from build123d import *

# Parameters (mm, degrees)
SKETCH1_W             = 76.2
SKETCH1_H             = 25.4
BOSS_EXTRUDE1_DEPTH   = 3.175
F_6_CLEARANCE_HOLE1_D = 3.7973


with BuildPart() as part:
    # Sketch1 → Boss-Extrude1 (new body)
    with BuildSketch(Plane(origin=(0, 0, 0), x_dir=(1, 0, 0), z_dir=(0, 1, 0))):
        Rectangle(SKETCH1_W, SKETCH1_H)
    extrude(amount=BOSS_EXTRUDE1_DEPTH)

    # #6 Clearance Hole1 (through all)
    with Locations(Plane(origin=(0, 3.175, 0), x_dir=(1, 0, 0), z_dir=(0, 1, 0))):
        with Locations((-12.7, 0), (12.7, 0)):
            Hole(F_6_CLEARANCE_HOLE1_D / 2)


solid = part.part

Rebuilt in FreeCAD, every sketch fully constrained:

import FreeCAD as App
import Part
import Sketcher
from FreeCAD import Vector
Q = App.Units.Quantity


def add_polygon(sketch, points):
    """Adds a closed chain of lines whose ends are joined by coincident constraints."""
    first, n = sketch.GeometryCount, len(points)
    for a, b in zip(points, points[1:] + points[:1]):
        sketch.addGeometry(Part.LineSegment(App.Vector(*a, 0), App.Vector(*b, 0)), False)
    for i in range(n):
        sketch.addConstraint(Sketcher.Constraint("Coincident", first + i, 2, first + (i + 1) % n, 1))

doc = App.newDocument("Part")
body = doc.addObject("PartDesign::Body", "Body")

# Sketch on XZ plane
sketch1 = body.newObject("Sketcher::SketchObject", "Sketch")
sketch1.AttachmentSupport = (doc.getObject("XZ_Plane"), [""])
sketch1.MapMode = "FlatFace"
add_polygon(sketch1, [(-38, -13), (-38, 13), (38, 13), (38, -13)])  # lines 0-3
sketch1.addConstraint(Sketcher.Constraint("Vertical", 0))
sketch1.addConstraint(Sketcher.Constraint("Horizontal", 1))
sketch1.addConstraint(Sketcher.Constraint("Vertical", 2))
sketch1.addConstraint(Sketcher.Constraint("Horizontal", 3))
sketch1.addConstraint(Sketcher.Constraint("Symmetric", 0, 2, 2, 2, -1, 1))
sketch1.addConstraint(Sketcher.Constraint("DistanceX", 1, 1, 1, 2, Q("3 in")))
sketch1.addConstraint(Sketcher.Constraint("DistanceY", 0, 1, 0, 2, Q("1 in")))
pad1 = body.newObject("PartDesign::Pad", "Pad")
pad1.Profile = sketch1
pad1.Length = Q("0.125 in")
pad1.Reversed = True

# Sketch on XZ plane
sketch2 = body.newObject("Sketcher::SketchObject", "Sketch001")
sketch2.AttachmentSupport = (doc.getObject("XZ_Plane"), [""])
sketch2.MapMode = "FlatFace"
sketch2.AttachmentOffset = App.Placement(Vector(0, 0, -0.125 * 25.4), App.Rotation())
sketch2.addGeometry(Part.Circle(Vector(-12.7, 0, 0), Vector(0, 0, 1), 1.9), False)
sketch2.addGeometry(Part.Circle(Vector(12.7, 0, 0), Vector(0, 0, 1), 1.9), False)
sketch2.addConstraint(Sketcher.Constraint("Equal", 0, 1))
sketch2.addConstraint(Sketcher.Constraint("Symmetric", 0, 3, 1, 3, -1, 1))
sketch2.addConstraint(Sketcher.Constraint("PointOnObject", 0, 3, -1))
sketch2.addConstraint(Sketcher.Constraint("DistanceX", 0, 3, 1, 3, Q("1 in")))
sketch2.addConstraint(Sketcher.Constraint("Diameter", 0, Q("0.1495 in")))
doc.recompute()
hole = body.newObject("PartDesign::Hole", "Hole")
hole.Profile = sketch2
hole.ThreadType = "None"
hole.Diameter = Q("0.1495 in")
hole.DepthType = "ThroughAll"
hole.Reversed = True

doc.recompute()
